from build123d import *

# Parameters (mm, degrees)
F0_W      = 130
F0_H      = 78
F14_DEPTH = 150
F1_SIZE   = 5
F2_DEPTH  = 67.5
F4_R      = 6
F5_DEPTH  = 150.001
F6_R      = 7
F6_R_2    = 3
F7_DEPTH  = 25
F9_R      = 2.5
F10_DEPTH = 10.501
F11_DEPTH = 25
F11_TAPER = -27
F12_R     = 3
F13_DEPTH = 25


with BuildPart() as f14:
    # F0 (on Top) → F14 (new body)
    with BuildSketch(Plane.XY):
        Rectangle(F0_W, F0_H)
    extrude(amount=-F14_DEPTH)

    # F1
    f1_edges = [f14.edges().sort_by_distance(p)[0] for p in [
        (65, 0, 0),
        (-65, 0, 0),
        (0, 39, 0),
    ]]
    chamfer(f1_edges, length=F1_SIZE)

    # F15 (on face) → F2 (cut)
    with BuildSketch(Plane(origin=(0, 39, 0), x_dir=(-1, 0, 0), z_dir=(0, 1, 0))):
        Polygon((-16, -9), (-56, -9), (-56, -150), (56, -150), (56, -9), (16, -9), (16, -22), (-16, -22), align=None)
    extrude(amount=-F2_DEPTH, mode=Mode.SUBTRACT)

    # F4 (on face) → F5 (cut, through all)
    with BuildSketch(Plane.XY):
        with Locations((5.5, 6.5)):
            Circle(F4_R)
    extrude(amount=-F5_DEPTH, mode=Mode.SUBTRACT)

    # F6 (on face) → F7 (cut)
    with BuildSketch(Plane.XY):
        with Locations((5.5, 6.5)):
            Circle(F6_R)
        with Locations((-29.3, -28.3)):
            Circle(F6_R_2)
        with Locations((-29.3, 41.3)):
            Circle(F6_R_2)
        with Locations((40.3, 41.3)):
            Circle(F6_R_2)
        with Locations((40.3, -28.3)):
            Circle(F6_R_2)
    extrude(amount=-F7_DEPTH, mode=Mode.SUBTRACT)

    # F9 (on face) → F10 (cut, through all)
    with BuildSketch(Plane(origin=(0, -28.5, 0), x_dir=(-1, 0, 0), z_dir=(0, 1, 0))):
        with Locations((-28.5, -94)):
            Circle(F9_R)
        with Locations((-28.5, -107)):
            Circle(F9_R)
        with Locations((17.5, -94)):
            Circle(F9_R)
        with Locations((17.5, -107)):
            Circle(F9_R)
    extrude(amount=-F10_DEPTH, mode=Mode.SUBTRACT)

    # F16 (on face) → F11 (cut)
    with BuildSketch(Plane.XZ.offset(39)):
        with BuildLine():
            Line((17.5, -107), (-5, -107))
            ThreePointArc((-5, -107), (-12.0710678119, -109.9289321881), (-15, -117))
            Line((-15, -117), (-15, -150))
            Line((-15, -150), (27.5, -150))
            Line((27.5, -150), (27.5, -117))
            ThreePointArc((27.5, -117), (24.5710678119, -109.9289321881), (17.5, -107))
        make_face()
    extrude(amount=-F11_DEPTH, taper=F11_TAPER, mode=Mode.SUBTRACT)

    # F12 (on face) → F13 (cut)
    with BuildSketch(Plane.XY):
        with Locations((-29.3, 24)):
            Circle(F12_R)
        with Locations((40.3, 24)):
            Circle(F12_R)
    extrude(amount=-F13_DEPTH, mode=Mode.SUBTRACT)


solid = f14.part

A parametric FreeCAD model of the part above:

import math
import FreeCAD as App
import Part
import Sketcher
from FreeCAD import Vector


def edges_at(feature, points):
    """Names of the edges that pass closest to the given points."""
    edges = feature.Shape.Edges
    near = lambda p: min(range(len(edges)), key=lambda i: edges[i].distToShape(Part.Vertex(*p))[0])
    return sorted({f"Edge{near(p) + 1}" for p in points})


def add_polygon(sketch, points):
    """Adds a closed chain of lines whose ends are joined by coincident constraints."""
    first, n = sketch.GeometryCount, len(points)
    for a, b in zip(points, points[1:] + points[:1]):
        sketch.addGeometry(Part.LineSegment(App.Vector(*a, 0), App.Vector(*b, 0)), False)
    for i in range(n):
        sketch.addConstraint(Sketcher.Constraint("Coincident", first + i, 2, first + (i + 1) % n, 1))

doc = App.newDocument("Part")
params = doc.addObject("Spreadsheet::Sheet", "Params")
for row, (alias, value) in enumerate([
    ("sketch1_width", "130 mm"),
    ("sketch1_height", "78 mm"),
    ("pad1_length", "150 mm"),
    ("chamfer_size", "5 mm"),
    ("sketch2_width", "40 mm"),
    ("sketch2_width2", "112 mm"),
    ("sketch2_height", "141 mm"),
    ("sketch2_height2", "13 mm"),
    ("pocket1_length", "67.5 mm"),
    ("sketch3_diameter", "12 mm"),
    ("sketch4_diameter", "14 mm"),
    ("sketch4_diameter2", "6 mm"),
    ("pocket3_length", "25 mm"),
    ("sketch5_diameter", "5 mm"),
    ("sketch6_radius", "10 mm"),
    ("sketch6_height", "33 mm"),
    ("sketch6_width", "22.5 mm"),
    ("pocket5_length", "25 mm"),
    ("pocket5_taper", "27 deg"),
    ("sketch7_diameter", "6 mm"),
    ("pocket6_length", "25 mm"),
], start=1):
    params.set(f"A{row}", alias)
    params.set(f"B{row}", "=" + value)
    params.setAlias(f"B{row}", alias)

body = doc.addObject("PartDesign::Body", "Body")

# Sketch on XY plane
sketch1 = doc.addObject("Sketcher::SketchObject", "Sketch")
body.addObject(sketch1)
sketch1.AttachmentSupport = (doc.XY_Plane, [""])
sketch1.MapMode = "FlatFace"
add_polygon(sketch1, [(-65, 39), (-65, -39), (65, -39), (65, 39)])  # lines 0-3
sketch1.addConstraint([
    Sketcher.Constraint("Vertical", 0),
    Sketcher.Constraint("Horizontal", 1),
    Sketcher.Constraint("Vertical", 2),
    Sketcher.Constraint("Horizontal", 3),
    Sketcher.Constraint("Symmetric", 0, 2, 2, 2, -1, 1),
    Sketcher.Constraint("DistanceX", 1, 1, 1, 2, 130.0),
    Sketcher.Constraint("DistanceY", 0, 2, 0, 1, 78.0),
])
sketch1.setExpression("Constraints[9]", "Params.sketch1_width")
sketch1.setExpression("Constraints[10]", "Params.sketch1_height")
pad1 = doc.addObject("PartDesign::Pad", "Pad")
body.addObject(pad1)
pad1.Profile = sketch1
pad1.setExpression("Length", "Params.pad1_length")
pad1.Reversed = True
doc.recompute()

chamfer = doc.addObject("PartDesign::Chamfer", "Chamfer")
body.addObject(chamfer)
chamfer.Base = (pad1, edges_at(pad1, [(65, 0, 0), (-65, 0, 0), (0, 39, 0)]))
chamfer.setExpression("Size", "Params.chamfer_size")

# Sketch on XZ plane
sketch2 = doc.addObject("Sketcher::SketchObject", "Sketch001")
body.addObject(sketch2)
sketch2.AttachmentSupport = (doc.XZ_Plane, [""])
sketch2.MapMode = "FlatFace"
sketch2.AttachmentOffset = App.Placement(Vector(0, 0, -39), App.Rotation())
add_polygon(sketch2, [(16, -9), (56, -9), (56, -150), (-56, -150), (-56, -9), (-16, -9), (-16, -22), (16, -22)])  # lines 0-7
sketch2.addConstraint([
    Sketcher.Constraint("Horizontal", 0),
    Sketcher.Constraint("Vertical", 1),
    Sketcher.Constraint("Horizontal", 2),
    Sketcher.Constraint("Vertical", 3),
    Sketcher.Constraint("Horizontal", 4),
    Sketcher.Constraint("Vertical", 5),
    Sketcher.Constraint("Horizontal", 6),
    Sketcher.Constraint("Vertical", 7),
    Sketcher.Constraint("Symmetric", 0, 2, 3, 2, -2),
    Sketcher.Constraint("Equal", 0, 4),
    Sketcher.Constraint("DistanceX", 0, 1, 0, 2, 40.0),
    Sketcher.Constraint("DistanceX", 2, 2, 2, 1, 112.0),
    Sketcher.Constraint("DistanceY", 1, 2, 1, 1, 141.0),
    Sketcher.Constraint("DistanceY", 5, 2, 5, 1, 13.0),
    Sketcher.Constraint("DistanceY", 0, 2, -1, 1, 9.0),
])
sketch2.setExpression("Constraints[18]", "Params.sketch2_width")
sketch2.setExpression("Constraints[19]", "Params.sketch2_width2")
sketch2.setExpression("Constraints[20]", "Params.sketch2_height")
sketch2.setExpression("Constraints[21]", "Params.sketch2_height2")
pocket1 = doc.addObject("PartDesign::Pocket", "Pocket")
body.addObject(pocket1)
pocket1.Profile = sketch2
pocket1.setExpression("Length", "Params.pocket1_length")
pocket1.Reversed = True

# Sketch on XY plane
sketch3 = doc.addObject("Sketcher::SketchObject", "Sketch002")
body.addObject(sketch3)
sketch3.AttachmentSupport = (doc.XY_Plane, [""])
sketch3.MapMode = "FlatFace"
sketch3.addGeometry(Part.Circle(Vector(6, 6, 0), Vector(0, 0, 1), 6), False)
sketch3.addConstraint([
    Sketcher.Constraint("Diameter", 0, 12.0),
    Sketcher.Constraint("DistanceX", -1, 1, 0, 3, 5.5),
    Sketcher.Constraint("DistanceY", -1, 1, 0, 3, 6.5),
])
sketch3.setExpression("Constraints[0]", "Params.sketch3_diameter")
pocket2 = doc.addObject("PartDesign::Pocket", "Pocket001")
body.addObject(pocket2)
pocket2.Profile = sketch3
pocket2.Type = "ThroughAll"

# Sketch on XY plane
sketch4 = doc.addObject("Sketcher::SketchObject", "Sketch003")
body.addObject(sketch4)
sketch4.AttachmentSupport = (doc.XY_Plane, [""])
sketch4.MapMode = "FlatFace"
sketch4.addGeometry([
    Part.Circle(Vector(5.5, 6.5, 0), Vector(0, 0, 1), 7),  # 0
    Part.Circle(Vector(-29.3, -28.3, 0), Vector(0, 0, 1), 3),  # 1
    Part.Circle(Vector(-29.3, 41.3, 0), Vector(0, 0, 1), 3),  # 2
    Part.Circle(Vector(40.3, 41.3, 0), Vector(0, 0, 1), 3),  # 3
    Part.Circle(Vector(40.3, -28.3, 0), Vector(0, 0, 1), 3),  # 4
], False)
sketch4.addConstraint([
    Sketcher.Constraint("Equal", 1, 2),
    Sketcher.Constraint("Equal", 2, 3),
    Sketcher.Constraint("Equal", 3, 4),
    Sketcher.Constraint("Horizontal", 2, 3, 3, 3),
    Sketcher.Constraint("Horizontal", 1, 3, 4, 3),
    Sketcher.Constraint("Vertical", 1, 3, 2, 3),
    Sketcher.Constraint("Vertical", 3, 3, 4, 3),
    Sketcher.Constraint("Diameter", 0, 14.0),
    Sketcher.Constraint("Diameter", 1, 6.0),
    Sketcher.Constraint("DistanceX", -1, 1, 0, 3, 5.5),
    Sketcher.Constraint("DistanceY", -1, 1, 0, 3, 6.5),
    Sketcher.Constraint("DistanceX", 1, 3, -1, 1, 29.3),
    Sketcher.Constraint("DistanceY", 1, 3, -1, 1, 28.3),
    Sketcher.Constraint("DistanceY", -1, 1, 2, 3, 41.3),
    Sketcher.Constraint("DistanceX", -1, 1, 3, 3, 40.3),
])
sketch4.setExpression("Constraints[7]", "Params.sketch4_diameter")
sketch4.setExpression("Constraints[8]", "Params.sketch4_diameter2")
pocket3 = doc.addObject("PartDesign::Pocket", "Pocket002")
body.addObject(pocket3)
pocket3.Profile = sketch4
pocket3.setExpression("Length", "Params.pocket3_length")

# Sketch on XZ plane
sketch5 = doc.addObject("Sketcher::SketchObject", "Sketch004")
body.addObject(sketch5)
sketch5.AttachmentSupport = (doc.XZ_Plane, [""])
sketch5.MapMode = "FlatFace"
sketch5.AttachmentOffset = App.Placement(Vector(0, 0, 28.5), App.Rotation())
sketch5.addGeometry([
    Part.Circle(Vector(28.5, -94, 0), Vector(0, 0, 1), 2.5),
    Part.Circle(Vector(28.5, -107, 0), Vector(0, 0, 1), 2.5),
    Part.Circle(Vector(-17.5, -94, 0), Vector(0, 0, 1), 2.5),
    Part.Circle(Vector(-17.5, -107, 0), Vector(0, 0, 1), 2.5),
], False)
sketch5.addConstraint([
    Sketcher.Constraint("Equal", 0, 1),
    Sketcher.Constraint("Equal", 1, 2),
    Sketcher.Constraint("Equal", 2, 3),
    Sketcher.Constraint("Horizontal", 0, 3, 2, 3),
    Sketcher.Constraint("Horizontal", 1, 3, 3, 3),
    Sketcher.Constraint("Vertical", 0, 3, 1, 3),
    Sketcher.Constraint("Vertical", 2, 3, 3, 3),
    Sketcher.Constraint("Diameter", 0, 5.0),
    Sketcher.Constraint("DistanceY", 0, 3, -1, 1, 94.0),
    Sketcher.Constraint("DistanceY", 1, 3, -1, 1, 107.0),
    Sketcher.Constraint("DistanceX", 2, 3, 0, 3, 46.0),
    Sketcher.Constraint("DistanceX", -1, 1, 0, 3, 28.5),
])
sketch5.setExpression("Constraints[7]", "Params.sketch5_diameter")
pocket4 = doc.addObject("PartDesign::Pocket", "Pocket003")
body.addObject(pocket4)
pocket4.Profile = sketch5
pocket4.Type = "ThroughAll"
pocket4.Reversed = True

# Sketch on XZ plane
sketch6 = doc.addObject("Sketcher::SketchObject", "Sketch005")
body.addObject(sketch6)
sketch6.AttachmentSupport = (doc.XZ_Plane, [""])
sketch6.MapMode = "FlatFace"
sketch6.AttachmentOffset = App.Placement(Vector(0, 0, 39), App.Rotation())
sketch6.addGeometry([
    Part.LineSegment(Vector(18, -107, 0), Vector(-5, -107, 0)),  # 0
    Part.ArcOfCircle(Part.Circle(Vector(-5, -117, 0), Vector(0, 0, 1), 10), math.radians(90), math.radians(180)),  # 1
    Part.LineSegment(Vector(-15, -117, 0), Vector(-15, -150, 0)),  # 2
    Part.LineSegment(Vector(-15, -150, 0), Vector(28, -150, 0)),  # 3
    Part.LineSegment(Vector(28, -150, 0), Vector(28, -117, 0)),  # 4
    Part.ArcOfCircle(Part.Circle(Vector(18, -117, 0), Vector(0, 0, 1), 10), math.radians(0), math.radians(90)),  # 5
], False)
sketch6.addConstraint([
    Sketcher.Constraint("Tangent", 0, 2, 1, 1),
    Sketcher.Constraint("Tangent", 1, 2, 2, 1),
    Sketcher.Constraint("Coincident", 2, 2, 3, 1),
    Sketcher.Constraint("Coincident", 3, 2, 4, 1),
    Sketcher.Constraint("Tangent", 4, 2, 5, 1),
    Sketcher.Constraint("Tangent", 5, 2, 0, 1),
    Sketcher.Constraint("Horizontal", 0),
    Sketcher.Constraint("Vertical", 2),
    Sketcher.Constraint("Horizontal", 3),
    Sketcher.Constraint("Vertical", 4),
    Sketcher.Constraint("Equal", 1, 5),
    Sketcher.Constraint("Radius", 1, 10.0),
    Sketcher.Constraint("DistanceY", 2, 2, 2, 1, 33.0),
    Sketcher.Constraint("DistanceX", 0, 2, 0, 1, 22.5),
    Sketcher.Constraint("DistanceX", 1, 3, -1, 1, 5.0),
    Sketcher.Constraint("DistanceY", 1, 3, -1, 1, 117.0),
])
sketch6.setExpression("Constraints[11]", "Params.sketch6_radius")
sketch6.setExpression("Constraints[12]", "Params.sketch6_height")
sketch6.setExpression("Constraints[13]", "Params.sketch6_width")
pocket5 = doc.addObject("PartDesign::Pocket", "Pocket004")
body.addObject(pocket5)
pocket5.Profile = sketch6
pocket5.setExpression("Length", "Params.pocket5_length")
pocket5.setExpression("TaperAngle", "Params.pocket5_taper")

# Sketch on XY plane
sketch7 = doc.addObject("Sketcher::SketchObject", "Sketch006")
body.addObject(sketch7)
sketch7.AttachmentSupport = (doc.XY_Plane, [""])
sketch7.MapMode = "FlatFace"
sketch7.addGeometry([
    Part.Circle(Vector(-29.3, 24, 0), Vector(0, 0, 1), 3),
    Part.Circle(Vector(40.3, 24, 0), Vector(0, 0, 1), 3),
], False)
sketch7.addConstraint([
    Sketcher.Constraint("Equal", 0, 1),
    Sketcher.Constraint("Horizontal", 0, 3, 1, 3),
    Sketcher.Constraint("Diameter", 0, 6.0),
    Sketcher.Constraint("DistanceY", -1, 1, 0, 3, 24.0),
    Sketcher.Constraint("DistanceX", 0, 3, -1, 1, 29.3),
    Sketcher.Constraint("DistanceX", -1, 1, 1, 3, 40.3),
])
sketch7.setExpression("Constraints[2]", "Params.sketch7_diameter")
pocket6 = doc.addObject("PartDesign::Pocket", "Pocket005")
body.addObject(pocket6)
pocket6.Profile = sketch7
pocket6.setExpression("Length", "Params.pocket6_length")

doc.recompute()
